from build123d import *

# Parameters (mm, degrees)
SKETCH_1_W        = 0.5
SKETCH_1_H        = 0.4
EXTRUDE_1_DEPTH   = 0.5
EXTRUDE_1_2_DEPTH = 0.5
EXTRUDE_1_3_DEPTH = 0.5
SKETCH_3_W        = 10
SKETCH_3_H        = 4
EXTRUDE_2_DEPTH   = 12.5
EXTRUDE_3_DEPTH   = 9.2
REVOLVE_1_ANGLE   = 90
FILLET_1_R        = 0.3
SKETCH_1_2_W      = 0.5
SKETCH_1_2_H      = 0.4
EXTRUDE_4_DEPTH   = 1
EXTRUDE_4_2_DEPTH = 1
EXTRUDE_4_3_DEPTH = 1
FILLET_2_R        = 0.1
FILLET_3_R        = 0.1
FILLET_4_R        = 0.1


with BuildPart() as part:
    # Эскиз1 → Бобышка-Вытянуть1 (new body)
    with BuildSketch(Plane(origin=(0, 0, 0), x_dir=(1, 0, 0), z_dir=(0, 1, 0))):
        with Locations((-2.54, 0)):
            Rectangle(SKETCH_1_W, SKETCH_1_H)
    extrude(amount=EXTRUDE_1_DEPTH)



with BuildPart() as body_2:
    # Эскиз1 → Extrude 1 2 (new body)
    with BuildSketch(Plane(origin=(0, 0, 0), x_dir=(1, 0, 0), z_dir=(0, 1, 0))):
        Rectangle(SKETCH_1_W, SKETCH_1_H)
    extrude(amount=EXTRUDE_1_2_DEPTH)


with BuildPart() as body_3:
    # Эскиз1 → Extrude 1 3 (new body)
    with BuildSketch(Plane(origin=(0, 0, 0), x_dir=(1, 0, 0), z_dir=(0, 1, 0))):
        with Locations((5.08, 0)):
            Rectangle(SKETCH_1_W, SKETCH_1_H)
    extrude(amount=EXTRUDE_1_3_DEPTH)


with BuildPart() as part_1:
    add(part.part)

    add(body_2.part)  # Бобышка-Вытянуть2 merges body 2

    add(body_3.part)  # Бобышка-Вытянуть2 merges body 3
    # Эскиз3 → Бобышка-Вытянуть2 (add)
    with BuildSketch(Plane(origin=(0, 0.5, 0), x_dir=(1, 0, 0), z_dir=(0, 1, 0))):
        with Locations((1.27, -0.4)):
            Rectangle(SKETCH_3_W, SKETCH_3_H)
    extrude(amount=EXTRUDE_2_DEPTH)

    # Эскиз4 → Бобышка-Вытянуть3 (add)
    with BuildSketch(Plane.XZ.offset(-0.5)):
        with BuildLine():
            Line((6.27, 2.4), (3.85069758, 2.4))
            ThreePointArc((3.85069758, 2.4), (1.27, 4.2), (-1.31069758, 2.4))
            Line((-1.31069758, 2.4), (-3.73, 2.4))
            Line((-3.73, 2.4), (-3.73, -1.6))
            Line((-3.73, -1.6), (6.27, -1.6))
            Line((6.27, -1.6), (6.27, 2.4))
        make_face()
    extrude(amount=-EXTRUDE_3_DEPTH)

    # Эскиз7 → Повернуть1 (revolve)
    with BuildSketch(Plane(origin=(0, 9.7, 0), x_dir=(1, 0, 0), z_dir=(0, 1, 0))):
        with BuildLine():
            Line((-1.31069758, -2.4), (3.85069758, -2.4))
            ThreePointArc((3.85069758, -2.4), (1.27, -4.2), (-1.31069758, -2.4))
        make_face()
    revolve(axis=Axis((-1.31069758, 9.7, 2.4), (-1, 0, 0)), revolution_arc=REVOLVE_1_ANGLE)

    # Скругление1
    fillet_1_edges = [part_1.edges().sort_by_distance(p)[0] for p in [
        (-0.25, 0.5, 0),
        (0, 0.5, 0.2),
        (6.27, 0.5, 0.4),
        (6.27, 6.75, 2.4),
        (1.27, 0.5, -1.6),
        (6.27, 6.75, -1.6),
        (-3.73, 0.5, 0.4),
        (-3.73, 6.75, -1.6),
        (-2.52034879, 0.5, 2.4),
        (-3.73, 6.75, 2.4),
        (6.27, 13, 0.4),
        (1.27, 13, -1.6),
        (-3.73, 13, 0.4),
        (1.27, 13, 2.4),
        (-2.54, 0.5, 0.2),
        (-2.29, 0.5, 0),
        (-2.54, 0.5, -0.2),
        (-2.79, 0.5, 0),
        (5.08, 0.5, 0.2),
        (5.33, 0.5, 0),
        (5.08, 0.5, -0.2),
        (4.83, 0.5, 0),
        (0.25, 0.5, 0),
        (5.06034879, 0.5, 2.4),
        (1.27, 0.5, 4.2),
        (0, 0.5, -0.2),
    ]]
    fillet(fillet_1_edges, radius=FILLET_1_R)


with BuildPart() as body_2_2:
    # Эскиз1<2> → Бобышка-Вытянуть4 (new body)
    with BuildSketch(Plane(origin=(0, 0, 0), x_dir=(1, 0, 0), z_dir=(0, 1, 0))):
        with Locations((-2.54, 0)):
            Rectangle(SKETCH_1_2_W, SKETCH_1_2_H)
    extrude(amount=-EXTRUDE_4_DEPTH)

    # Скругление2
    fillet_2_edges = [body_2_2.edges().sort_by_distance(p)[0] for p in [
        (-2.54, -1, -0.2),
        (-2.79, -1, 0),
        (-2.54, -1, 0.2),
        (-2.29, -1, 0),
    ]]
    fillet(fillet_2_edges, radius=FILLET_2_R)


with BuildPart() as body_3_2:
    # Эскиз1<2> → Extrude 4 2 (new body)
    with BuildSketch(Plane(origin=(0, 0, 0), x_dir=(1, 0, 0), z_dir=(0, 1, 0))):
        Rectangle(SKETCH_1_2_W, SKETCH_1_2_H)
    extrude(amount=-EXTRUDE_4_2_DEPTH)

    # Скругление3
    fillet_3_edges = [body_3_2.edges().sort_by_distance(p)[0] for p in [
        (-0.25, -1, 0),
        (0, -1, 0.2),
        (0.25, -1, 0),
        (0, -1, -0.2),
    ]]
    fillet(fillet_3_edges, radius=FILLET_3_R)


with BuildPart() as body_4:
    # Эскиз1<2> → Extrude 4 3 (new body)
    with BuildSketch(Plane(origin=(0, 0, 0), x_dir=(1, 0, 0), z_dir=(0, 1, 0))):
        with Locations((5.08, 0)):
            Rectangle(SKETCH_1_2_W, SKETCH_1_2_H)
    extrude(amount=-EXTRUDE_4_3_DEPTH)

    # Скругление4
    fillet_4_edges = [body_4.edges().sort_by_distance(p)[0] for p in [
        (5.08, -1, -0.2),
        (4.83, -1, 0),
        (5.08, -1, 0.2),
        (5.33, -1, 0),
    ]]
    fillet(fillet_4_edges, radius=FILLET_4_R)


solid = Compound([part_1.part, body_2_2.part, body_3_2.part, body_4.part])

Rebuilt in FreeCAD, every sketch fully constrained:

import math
import FreeCAD as App
import Part
import Sketcher
from FreeCAD import Vector


def edges_at(feature, points):
    """Names of the edges that pass closest to the given points."""
    edges = feature.Shape.Edges
    near = lambda p: min(range(len(edges)), key=lambda i: edges[i].distToShape(Part.Vertex(*p))[0])
    return sorted({f"Edge{near(p) + 1}" for p in points})

doc = App.newDocument("Part")
body = doc.addObject("PartDesign::Body", "Body")

# Sketch on XZ plane
sketch1 = body.newObject("Sketcher::SketchObject", "Sketch")
sketch1.AttachmentSupport = (doc.getObject("XZ_Plane"), [""])
sketch1.MapMode = "FlatFace"
sketch1.addGeometry(Part.LineSegment(Vector(-2.79, -0.2, 0), Vector(-2.79, 0.2, 0)), False)
sketch1.addGeometry(Part.LineSegment(Vector(-2.79, 0.2, 0), Vector(-2.29, 0.2, 0)), False)
sketch1.addGeometry(Part.LineSegment(Vector(-2.29, 0.2, 0), Vector(-2.29, -0.2, 0)), False)
sketch1.addGeometry(Part.LineSegment(Vector(-2.29, -0.2, 0), Vector(-2.79, -0.2, 0)), False)
sketch1.addConstraint(Sketcher.Constraint("Coincident", 0, 2, 1, 1))
sketch1.addConstraint(Sketcher.Constraint("Coincident", 1, 2, 2, 1))
sketch1.addConstraint(Sketcher.Constraint("Coincident", 2, 2, 3, 1))
sketch1.addConstraint(Sketcher.Constraint("Coincident", 3, 2, 0, 1))
sketch1.addConstraint(Sketcher.Constraint("Vertical", 0))
sketch1.addConstraint(Sketcher.Constraint("Horizontal", 1))
sketch1.addConstraint(Sketcher.Constraint("Vertical", 2))
sketch1.addConstraint(Sketcher.Constraint("Horizontal", 3))
sketch1.addConstraint(Sketcher.Constraint("DistanceX", 1, 1, 1, 2, 0.5))
sketch1.addConstraint(Sketcher.Constraint("DistanceY", 0, 1, 0, 2, 0.4))
sketch1.addConstraint(Sketcher.Constraint("DistanceY", -1, 1, 0, 2, 0.2))
sketch1.addConstraint(Sketcher.Constraint("DistanceX", 0, 2, -1, 1, 2.79))
pad1 = body.newObject("PartDesign::Pad", "Pad")
pad1.Profile = sketch1
pad1.Length = 0.5
pad1.Reversed = True
body2 = doc.addObject("PartDesign::Body", "Body001")

# Sketch on XZ plane
sketch2 = body2.newObject("Sketcher::SketchObject", "Sketch001")
sketch2.AttachmentSupport = (doc.getObject("XZ_Plane001"), [""])
sketch2.MapMode = "FlatFace"
sketch2.addGeometry(Part.LineSegment(Vector(-0.25, -0.2, 0), Vector(-0.25, 0.2, 0)), False)
sketch2.addGeometry(Part.LineSegment(Vector(-0.25, 0.2, 0), Vector(0.25, 0.2, 0)), False)
sketch2.addGeometry(Part.LineSegment(Vector(0.25, 0.2, 0), Vector(0.25, -0.2, 0)), False)
sketch2.addGeometry(Part.LineSegment(Vector(0.25, -0.2, 0), Vector(-0.25, -0.2, 0)), False)
sketch2.addConstraint(Sketcher.Constraint("Coincident", 0, 2, 1, 1))
sketch2.addConstraint(Sketcher.Constraint("Coincident", 1, 2, 2, 1))
sketch2.addConstraint(Sketcher.Constraint("Coincident", 2, 2, 3, 1))
sketch2.addConstraint(Sketcher.Constraint("Coincident", 3, 2, 0, 1))
sketch2.addConstraint(Sketcher.Constraint("Vertical", 0))
sketch2.addConstraint(Sketcher.Constraint("Horizontal", 1))
sketch2.addConstraint(Sketcher.Constraint("Vertical", 2))
sketch2.addConstraint(Sketcher.Constraint("Horizontal", 3))
sketch2.addConstraint(Sketcher.Constraint("Symmetric", 0, 2, 2, 2, -1, 1))
sketch2.addConstraint(Sketcher.Constraint("DistanceX", 1, 1, 1, 2, 0.5))
sketch2.addConstraint(Sketcher.Constraint("DistanceY", 0, 1, 0, 2, 0.4))
pad2 = body2.newObject("PartDesign::Pad", "Pad001")
pad2.Profile = sketch2
pad2.Length = 0.5
pad2.Reversed = True
body3 = doc.addObject("PartDesign::Body", "Body002")

# Sketch on XZ plane
sketch3 = body3.newObject("Sketcher::SketchObject", "Sketch002")
sketch3.AttachmentSupport = (doc.getObject("XZ_Plane002"), [""])
sketch3.MapMode = "FlatFace"
sketch3.addGeometry(Part.LineSegment(Vector(4.83, -0.2, 0), Vector(4.83, 0.2, 0)), False)
sketch3.addGeometry(Part.LineSegment(Vector(4.83, 0.2, 0), Vector(5.33, 0.2, 0)), False)
sketch3.addGeometry(Part.LineSegment(Vector(5.33, 0.2, 0), Vector(5.33, -0.2, 0)), False)
sketch3.addGeometry(Part.LineSegment(Vector(5.33, -0.2, 0), Vector(4.83, -0.2, 0)), False)
sketch3.addConstraint(Sketcher.Constraint("Coincident", 0, 2, 1, 1))
sketch3.addConstraint(Sketcher.Constraint("Coincident", 1, 2, 2, 1))
sketch3.addConstraint(Sketcher.Constraint("Coincident", 2, 2, 3, 1))
sketch3.addConstraint(Sketcher.Constraint("Coincident", 3, 2, 0, 1))
sketch3.addConstraint(Sketcher.Constraint("Vertical", 0))
sketch3.addConstraint(Sketcher.Constraint("Horizontal", 1))
sketch3.addConstraint(Sketcher.Constraint("Vertical", 2))
sketch3.addConstraint(Sketcher.Constraint("Horizontal", 3))
sketch3.addConstraint(Sketcher.Constraint("DistanceX", 1, 1, 1, 2, 0.5))
sketch3.addConstraint(Sketcher.Constraint("DistanceY", 0, 1, 0, 2, 0.4))
sketch3.addConstraint(Sketcher.Constraint("DistanceY", -1, 1, 0, 2, 0.2))
sketch3.addConstraint(Sketcher.Constraint("DistanceX", -1, 1, 0, 2, 4.83))
pad3 = body3.newObject("PartDesign::Pad", "Pad002")
pad3.Profile = sketch3
pad3.Length = 0.5
pad3.Reversed = True
body.AllowCompound = True
doc.recompute()

boolean = body.newObject("PartDesign::Boolean", "Boolean")
boolean.Type = "Fuse"
boolean.addObjects([body2])
doc.recompute()

boolean2 = body.newObject("PartDesign::Boolean", "Boolean001")
boolean2.Type = "Fuse"
boolean2.addObjects([body3])

# Sketch on XZ plane
sketch4 = body.newObject("Sketcher::SketchObject", "Sketch003")
sketch4.AttachmentSupport = (doc.getObject("XZ_Plane"), [""])
sketch4.MapMode = "FlatFace"
sketch4.AttachmentOffset = App.Placement(Vector(0, 0, -0.5), App.Rotation())
sketch4.addGeometry(Part.LineSegment(Vector(-3.7, -1.6, 0), Vector(-3.7, 2.4, 0)), False)
sketch4.addGeometry(Part.LineSegment(Vector(-3.7, 2.4, 0), Vector(6.3, 2.4, 0)), False)
sketch4.addGeometry(Part.LineSegment(Vector(6.3, 2.4, 0), Vector(6.3, -1.6, 0)), False)
sketch4.addGeometry(Part.LineSegment(Vector(6.3, -1.6, 0), Vector(-3.7, -1.6, 0)), False)
sketch4.addConstraint(Sketcher.Constraint("Coincident", 0, 2, 1, 1))
sketch4.addConstraint(Sketcher.Constraint("Coincident", 1, 2, 2, 1))
sketch4.addConstraint(Sketcher.Constraint("Coincident", 2, 2, 3, 1))
sketch4.addConstraint(Sketcher.Constraint("Coincident", 3, 2, 0, 1))
sketch4.addConstraint(Sketcher.Constraint("Vertical", 0))
sketch4.addConstraint(Sketcher.Constraint("Horizontal", 1))
sketch4.addConstraint(Sketcher.Constraint("Vertical", 2))
sketch4.addConstraint(Sketcher.Constraint("Horizontal", 3))
sketch4.addConstraint(Sketcher.Constraint("DistanceX", 1, 1, 1, 2, 10.0))
sketch4.addConstraint(Sketcher.Constraint("DistanceY", 0, 1, 0, 2, 4.0))
sketch4.addConstraint(Sketcher.Constraint("DistanceY", -1, 1, 0, 2, 2.4))
sketch4.addConstraint(Sketcher.Constraint("DistanceX", 0, 2, -1, 1, 3.73))
pad4 = body.newObject("PartDesign::Pad", "Pad003")
pad4.Profile = sketch4
pad4.Length = 12.5
pad4.Reversed = True

# Sketch on XZ plane
sketch5 = body.newObject("Sketcher::SketchObject", "Sketch004")
sketch5.AttachmentSupport = (doc.getObject("XZ_Plane"), [""])
sketch5.MapMode = "FlatFace"
sketch5.AttachmentOffset = App.Placement(Vector(0, 0, -0.5), App.Rotation())
sketch5.addGeometry(Part.LineSegment(Vector(6.3, 2.4, 0), Vector(3.9, 2.4, 0)), False)
sketch5.addGeometry(Part.ArcOfCircle(Part.Circle(Vector(1.3, 1.4, 0), Vector(0, 0, 1), 2.8), math.radians(20), math.radians(160)), False)
sketch5.addGeometry(Part.LineSegment(Vector(-1.3, 2.4, 0), Vector(-3.7, 2.4, 0)), False)
sketch5.addGeometry(Part.LineSegment(Vector(-3.7, 2.4, 0), Vector(-3.7, -1.6, 0)), False)
sketch5.addGeometry(Part.LineSegment(Vector(-3.7, -1.6, 0), Vector(6.3, -1.6, 0)), False)
sketch5.addGeometry(Part.LineSegment(Vector(6.3, -1.6, 0), Vector(6.3, 2.4, 0)), False)
sketch5.addConstraint(Sketcher.Constraint("Coincident", 0, 2, 1, 1))
sketch5.addConstraint(Sketcher.Constraint("Coincident", 1, 2, 2, 1))
sketch5.addConstraint(Sketcher.Constraint("Coincident", 2, 2, 3, 1))
sketch5.addConstraint(Sketcher.Constraint("Coincident", 3, 2, 4, 1))
sketch5.addConstraint(Sketcher.Constraint("Coincident", 4, 2, 5, 1))
sketch5.addConstraint(Sketcher.Constraint("Coincident", 5, 2, 0, 1))
sketch5.addConstraint(Sketcher.Constraint("Horizontal", 0))
sketch5.addConstraint(Sketcher.Constraint("Horizontal", 2))
sketch5.addConstraint(Sketcher.Constraint("Vertical", 3))
sketch5.addConstraint(Sketcher.Constraint("Horizontal", 4))
sketch5.addConstraint(Sketcher.Constraint("Vertical", 5))
sketch5.addConstraint(Sketcher.Constraint("Horizontal", 0, 2, 1, 2))
sketch5.addConstraint(Sketcher.Constraint("Equal", 0, 2))
sketch5.addConstraint(Sketcher.Constraint("DistanceX", 4, 1, 4, 2, 10.0))
sketch5.addConstraint(Sketcher.Constraint("DistanceY", 3, 2, 3, 1, 4.0))
sketch5.addConstraint(Sketcher.Constraint("Radius", 1, 2.75))
sketch5.addConstraint(Sketcher.Constraint("DistanceY", -1, 1, 0, 2, 2.4))
sketch5.addConstraint(Sketcher.Constraint("DistanceX", -1, 1, 1, 3, 1.27))
sketch5.addConstraint(Sketcher.Constraint("DistanceY", -1, 1, 1, 3, 1.45))
pad5 = body.newObject("PartDesign::Pad", "Pad004")
pad5.Profile = sketch5
pad5.Length = 9.2
pad5.Reversed = True

# Sketch on XZ plane
sketch6 = body.newObject("Sketcher::SketchObject", "Sketch005")
sketch6.AttachmentSupport = (doc.getObject("XZ_Plane"), [""])
sketch6.MapMode = "FlatFace"
sketch6.AttachmentOffset = App.Placement(Vector(0, 0, -9.7), App.Rotation())
sketch6.addGeometry(Part.LineSegment(Vector(3.9, 2.4, 0), Vector(-1.3, 2.4, 0)), False)
sketch6.addGeometry(Part.ArcOfCircle(Part.Circle(Vector(1.3, 1.4, 0), Vector(0, 0, 1), 2.8), math.radians(20), math.radians(160)), False)
sketch6.addGeometry(Part.LineSegment(Vector(3.9, 2.4, 0), Vector(-1.3, 2.4, 0)), True)  # axis
sketch6.addConstraint(Sketcher.Constraint("Coincident", 0, 1, 1, 1))
sketch6.addConstraint(Sketcher.Constraint("Coincident", 1, 2, 0, 2))
sketch6.addConstraint(Sketcher.Constraint("Horizontal", 0))
sketch6.addConstraint(Sketcher.Constraint("Horizontal", 2))
sketch6.addConstraint(Sketcher.Constraint("Coincident", 2, 1, 0, 1))
sketch6.addConstraint(Sketcher.Constraint("Equal", 0, 2))
sketch6.addConstraint(Sketcher.Constraint("Radius", 1, 2.75))
sketch6.addConstraint(Sketcher.Constraint("DistanceY", -1, 1, 0, 1, 2.4))
sketch6.addConstraint(Sketcher.Constraint("DistanceX", -1, 1, 1, 3, 1.27))
sketch6.addConstraint(Sketcher.Constraint("DistanceY", -1, 1, 1, 3, 1.45))
revolution = body.newObject("PartDesign::Revolution", "Revolution")
revolution.Profile = sketch6
revolution.ReferenceAxis = (sketch6, ["Axis0"])
revolution.Angle = 90
doc.recompute()

fillet = body.newObject("PartDesign::Fillet", "Fillet")
fillet.Base = (revolution, edges_at(revolution, [
    (-0.25, 0.5, 0),
    (0, 0.5, 0.2),
    (6.27, 0.5, 0.4),
    (6.27, 6.75, 2.4),
    (1.27, 0.5, -1.6),
    (6.27, 6.75, -1.6),
    (-3.73, 0.5, 0.4),
    (-3.73, 6.75, -1.6),
    (-2.52, 0.5, 2.4),
    (-3.73, 6.75, 2.4),
    (6.27, 13, 0.4),
    (1.27, 13, -1.6),
    (-3.73, 13, 0.4),
    (1.27, 13, 2.4),
    (-2.54, 0.5, 0.2),
    (-2.29, 0.5, 0),
    (-2.54, 0.5, -0.2),
    (-2.79, 0.5, 0),
    (5.08, 0.5, 0.2),
    (5.33, 0.5, 0),
    (5.08, 0.5, -0.2),
    (4.83, 0.5, 0),
    (0.25, 0.5, 0),
    (5.06, 0.5, 2.4),
    (1.27, 0.5, 4.2),
    (0, 0.5, -0.2),
]))
fillet.Radius = 0.3
body4 = doc.addObject("PartDesign::Body", "Body003")

# Sketch on XZ plane
sketch7 = body4.newObject("Sketcher::SketchObject", "Sketch006")
sketch7.AttachmentSupport = (doc.getObject("XZ_Plane003"), [""])
sketch7.MapMode = "FlatFace"
sketch7.addGeometry(Part.LineSegment(Vector(-2.79, -0.2, 0), Vector(-2.79, 0.2, 0)), False)
sketch7.addGeometry(Part.LineSegment(Vector(-2.79, 0.2, 0), Vector(-2.29, 0.2, 0)), False)
sketch7.addGeometry(Part.LineSegment(Vector(-2.29, 0.2, 0), Vector(-2.29, -0.2, 0)), False)
sketch7.addGeometry(Part.LineSegment(Vector(-2.29, -0.2, 0), Vector(-2.79, -0.2, 0)), False)
sketch7.addConstraint(Sketcher.Constraint("Coincident", 0, 2, 1, 1))
sketch7.addConstraint(Sketcher.Constraint("Coincident", 1, 2, 2, 1))
sketch7.addConstraint(Sketcher.Constraint("Coincident", 2, 2, 3, 1))
sketch7.addConstraint(Sketcher.Constraint("Coincident", 3, 2, 0, 1))
sketch7.addConstraint(Sketcher.Constraint("Vertical", 0))
sketch7.addConstraint(Sketcher.Constraint("Horizontal", 1))
sketch7.addConstraint(Sketcher.Constraint("Vertical", 2))
sketch7.addConstraint(Sketcher.Constraint("Horizontal", 3))
sketch7.addConstraint(Sketcher.Constraint("DistanceX", 1, 1, 1, 2, 0.5))
sketch7.addConstraint(Sketcher.Constraint("DistanceY", 0, 1, 0, 2, 0.4))
sketch7.addConstraint(Sketcher.Constraint("DistanceY", -1, 1, 0, 2, 0.2))
sketch7.addConstraint(Sketcher.Constraint("DistanceX", 0, 2, -1, 1, 2.79))
pad6 = body4.newObject("PartDesign::Pad", "Pad005")
pad6.Profile = sketch7
pad6.Length = 1
doc.recompute()

fillet2 = body4.newObject("PartDesign::Fillet", "Fillet001")
fillet2.Base = (pad6, edges_at(pad6, [
    (-2.54, -1, -0.2),
    (-2.79, -1, 0),
    (-2.54, -1, 0.2),
    (-2.29, -1, 0),
]))
fillet2.Radius = 0.1
body5 = doc.addObject("PartDesign::Body", "Body004")

# Sketch on XZ plane
sketch8 = body5.newObject("Sketcher::SketchObject", "Sketch007")
sketch8.AttachmentSupport = (doc.getObject("XZ_Plane004"), [""])
sketch8.MapMode = "FlatFace"
sketch8.addGeometry(Part.LineSegment(Vector(-0.25, -0.2, 0), Vector(-0.25, 0.2, 0)), False)
sketch8.addGeometry(Part.LineSegment(Vector(-0.25, 0.2, 0), Vector(0.25, 0.2, 0)), False)
sketch8.addGeometry(Part.LineSegment(Vector(0.25, 0.2, 0), Vector(0.25, -0.2, 0)), False)
sketch8.addGeometry(Part.LineSegment(Vector(0.25, -0.2, 0), Vector(-0.25, -0.2, 0)), False)
sketch8.addConstraint(Sketcher.Constraint("Coincident", 0, 2, 1, 1))
sketch8.addConstraint(Sketcher.Constraint("Coincident", 1, 2, 2, 1))
sketch8.addConstraint(Sketcher.Constraint("Coincident", 2, 2, 3, 1))
sketch8.addConstraint(Sketcher.Constraint("Coincident", 3, 2, 0, 1))
sketch8.addConstraint(Sketcher.Constraint("Vertical", 0))
sketch8.addConstraint(Sketcher.Constraint("Horizontal", 1))
sketch8.addConstraint(Sketcher.Constraint("Vertical", 2))
sketch8.addConstraint(Sketcher.Constraint("Horizontal", 3))
sketch8.addConstraint(Sketcher.Constraint("Symmetric", 0, 2, 2, 2, -1, 1))
sketch8.addConstraint(Sketcher.Constraint("DistanceX", 1, 1, 1, 2, 0.5))
sketch8.addConstraint(Sketcher.Constraint("DistanceY", 0, 1, 0, 2, 0.4))
pad7 = body5.newObject("PartDesign::Pad", "Pad006")
pad7.Profile = sketch8
pad7.Length = 1
doc.recompute()

fillet3 = body5.newObject("PartDesign::Fillet", "Fillet002")
fillet3.Base = (pad7, edges_at(pad7, [
    (-0.25, -1, 0),
    (0, -1, 0.2),
    (0.25, -1, 0),
    (0, -1, -0.2),
]))
fillet3.Radius = 0.1
body6 = doc.addObject("PartDesign::Body", "Body005")

# Sketch on XZ plane
sketch9 = body6.newObject("Sketcher::SketchObject", "Sketch008")
sketch9.AttachmentSupport = (doc.getObject("XZ_Plane005"), [""])
sketch9.MapMode = "FlatFace"
sketch9.addGeometry(Part.LineSegment(Vector(4.83, -0.2, 0), Vector(4.83, 0.2, 0)), False)
sketch9.addGeometry(Part.LineSegment(Vector(4.83, 0.2, 0), Vector(5.33, 0.2, 0)), False)
sketch9.addGeometry(Part.LineSegment(Vector(5.33, 0.2, 0), Vector(5.33, -0.2, 0)), False)
sketch9.addGeometry(Part.LineSegment(Vector(5.33, -0.2, 0), Vector(4.83, -0.2, 0)), False)
sketch9.addConstraint(Sketcher.Constraint("Coincident", 0, 2, 1, 1))
sketch9.addConstraint(Sketcher.Constraint("Coincident", 1, 2, 2, 1))
sketch9.addConstraint(Sketcher.Constraint("Coincident", 2, 2, 3, 1))
sketch9.addConstraint(Sketcher.Constraint("Coincident", 3, 2, 0, 1))
sketch9.addConstraint(Sketcher.Constraint("Vertical", 0))
sketch9.addConstraint(Sketcher.Constraint("Horizontal", 1))
sketch9.addConstraint(Sketcher.Constraint("Vertical", 2))
sketch9.addConstraint(Sketcher.Constraint("Horizontal", 3))
sketch9.addConstraint(Sketcher.Constraint("DistanceX", 1, 1, 1, 2, 0.5))
sketch9.addConstraint(Sketcher.Constraint("DistanceY", 0, 1, 0, 2, 0.4))
sketch9.addConstraint(Sketcher.Constraint("DistanceY", -1, 1, 0, 2, 0.2))
sketch9.addConstraint(Sketcher.Constraint("DistanceX", -1, 1, 0, 2, 4.83))
pad8 = body6.newObject("PartDesign::Pad", "Pad007")
pad8.Profile = sketch9
pad8.Length = 1
doc.recompute()

fillet4 = body6.newObject("PartDesign::Fillet", "Fillet003")
fillet4.Base = (pad8, edges_at(pad8, [
    (5.08, -1, -0.2),
    (4.83, -1, 0),
    (5.08, -1, 0.2),
    (5.33, -1, 0),
]))
fillet4.Radius = 0.1

doc.recompute()
